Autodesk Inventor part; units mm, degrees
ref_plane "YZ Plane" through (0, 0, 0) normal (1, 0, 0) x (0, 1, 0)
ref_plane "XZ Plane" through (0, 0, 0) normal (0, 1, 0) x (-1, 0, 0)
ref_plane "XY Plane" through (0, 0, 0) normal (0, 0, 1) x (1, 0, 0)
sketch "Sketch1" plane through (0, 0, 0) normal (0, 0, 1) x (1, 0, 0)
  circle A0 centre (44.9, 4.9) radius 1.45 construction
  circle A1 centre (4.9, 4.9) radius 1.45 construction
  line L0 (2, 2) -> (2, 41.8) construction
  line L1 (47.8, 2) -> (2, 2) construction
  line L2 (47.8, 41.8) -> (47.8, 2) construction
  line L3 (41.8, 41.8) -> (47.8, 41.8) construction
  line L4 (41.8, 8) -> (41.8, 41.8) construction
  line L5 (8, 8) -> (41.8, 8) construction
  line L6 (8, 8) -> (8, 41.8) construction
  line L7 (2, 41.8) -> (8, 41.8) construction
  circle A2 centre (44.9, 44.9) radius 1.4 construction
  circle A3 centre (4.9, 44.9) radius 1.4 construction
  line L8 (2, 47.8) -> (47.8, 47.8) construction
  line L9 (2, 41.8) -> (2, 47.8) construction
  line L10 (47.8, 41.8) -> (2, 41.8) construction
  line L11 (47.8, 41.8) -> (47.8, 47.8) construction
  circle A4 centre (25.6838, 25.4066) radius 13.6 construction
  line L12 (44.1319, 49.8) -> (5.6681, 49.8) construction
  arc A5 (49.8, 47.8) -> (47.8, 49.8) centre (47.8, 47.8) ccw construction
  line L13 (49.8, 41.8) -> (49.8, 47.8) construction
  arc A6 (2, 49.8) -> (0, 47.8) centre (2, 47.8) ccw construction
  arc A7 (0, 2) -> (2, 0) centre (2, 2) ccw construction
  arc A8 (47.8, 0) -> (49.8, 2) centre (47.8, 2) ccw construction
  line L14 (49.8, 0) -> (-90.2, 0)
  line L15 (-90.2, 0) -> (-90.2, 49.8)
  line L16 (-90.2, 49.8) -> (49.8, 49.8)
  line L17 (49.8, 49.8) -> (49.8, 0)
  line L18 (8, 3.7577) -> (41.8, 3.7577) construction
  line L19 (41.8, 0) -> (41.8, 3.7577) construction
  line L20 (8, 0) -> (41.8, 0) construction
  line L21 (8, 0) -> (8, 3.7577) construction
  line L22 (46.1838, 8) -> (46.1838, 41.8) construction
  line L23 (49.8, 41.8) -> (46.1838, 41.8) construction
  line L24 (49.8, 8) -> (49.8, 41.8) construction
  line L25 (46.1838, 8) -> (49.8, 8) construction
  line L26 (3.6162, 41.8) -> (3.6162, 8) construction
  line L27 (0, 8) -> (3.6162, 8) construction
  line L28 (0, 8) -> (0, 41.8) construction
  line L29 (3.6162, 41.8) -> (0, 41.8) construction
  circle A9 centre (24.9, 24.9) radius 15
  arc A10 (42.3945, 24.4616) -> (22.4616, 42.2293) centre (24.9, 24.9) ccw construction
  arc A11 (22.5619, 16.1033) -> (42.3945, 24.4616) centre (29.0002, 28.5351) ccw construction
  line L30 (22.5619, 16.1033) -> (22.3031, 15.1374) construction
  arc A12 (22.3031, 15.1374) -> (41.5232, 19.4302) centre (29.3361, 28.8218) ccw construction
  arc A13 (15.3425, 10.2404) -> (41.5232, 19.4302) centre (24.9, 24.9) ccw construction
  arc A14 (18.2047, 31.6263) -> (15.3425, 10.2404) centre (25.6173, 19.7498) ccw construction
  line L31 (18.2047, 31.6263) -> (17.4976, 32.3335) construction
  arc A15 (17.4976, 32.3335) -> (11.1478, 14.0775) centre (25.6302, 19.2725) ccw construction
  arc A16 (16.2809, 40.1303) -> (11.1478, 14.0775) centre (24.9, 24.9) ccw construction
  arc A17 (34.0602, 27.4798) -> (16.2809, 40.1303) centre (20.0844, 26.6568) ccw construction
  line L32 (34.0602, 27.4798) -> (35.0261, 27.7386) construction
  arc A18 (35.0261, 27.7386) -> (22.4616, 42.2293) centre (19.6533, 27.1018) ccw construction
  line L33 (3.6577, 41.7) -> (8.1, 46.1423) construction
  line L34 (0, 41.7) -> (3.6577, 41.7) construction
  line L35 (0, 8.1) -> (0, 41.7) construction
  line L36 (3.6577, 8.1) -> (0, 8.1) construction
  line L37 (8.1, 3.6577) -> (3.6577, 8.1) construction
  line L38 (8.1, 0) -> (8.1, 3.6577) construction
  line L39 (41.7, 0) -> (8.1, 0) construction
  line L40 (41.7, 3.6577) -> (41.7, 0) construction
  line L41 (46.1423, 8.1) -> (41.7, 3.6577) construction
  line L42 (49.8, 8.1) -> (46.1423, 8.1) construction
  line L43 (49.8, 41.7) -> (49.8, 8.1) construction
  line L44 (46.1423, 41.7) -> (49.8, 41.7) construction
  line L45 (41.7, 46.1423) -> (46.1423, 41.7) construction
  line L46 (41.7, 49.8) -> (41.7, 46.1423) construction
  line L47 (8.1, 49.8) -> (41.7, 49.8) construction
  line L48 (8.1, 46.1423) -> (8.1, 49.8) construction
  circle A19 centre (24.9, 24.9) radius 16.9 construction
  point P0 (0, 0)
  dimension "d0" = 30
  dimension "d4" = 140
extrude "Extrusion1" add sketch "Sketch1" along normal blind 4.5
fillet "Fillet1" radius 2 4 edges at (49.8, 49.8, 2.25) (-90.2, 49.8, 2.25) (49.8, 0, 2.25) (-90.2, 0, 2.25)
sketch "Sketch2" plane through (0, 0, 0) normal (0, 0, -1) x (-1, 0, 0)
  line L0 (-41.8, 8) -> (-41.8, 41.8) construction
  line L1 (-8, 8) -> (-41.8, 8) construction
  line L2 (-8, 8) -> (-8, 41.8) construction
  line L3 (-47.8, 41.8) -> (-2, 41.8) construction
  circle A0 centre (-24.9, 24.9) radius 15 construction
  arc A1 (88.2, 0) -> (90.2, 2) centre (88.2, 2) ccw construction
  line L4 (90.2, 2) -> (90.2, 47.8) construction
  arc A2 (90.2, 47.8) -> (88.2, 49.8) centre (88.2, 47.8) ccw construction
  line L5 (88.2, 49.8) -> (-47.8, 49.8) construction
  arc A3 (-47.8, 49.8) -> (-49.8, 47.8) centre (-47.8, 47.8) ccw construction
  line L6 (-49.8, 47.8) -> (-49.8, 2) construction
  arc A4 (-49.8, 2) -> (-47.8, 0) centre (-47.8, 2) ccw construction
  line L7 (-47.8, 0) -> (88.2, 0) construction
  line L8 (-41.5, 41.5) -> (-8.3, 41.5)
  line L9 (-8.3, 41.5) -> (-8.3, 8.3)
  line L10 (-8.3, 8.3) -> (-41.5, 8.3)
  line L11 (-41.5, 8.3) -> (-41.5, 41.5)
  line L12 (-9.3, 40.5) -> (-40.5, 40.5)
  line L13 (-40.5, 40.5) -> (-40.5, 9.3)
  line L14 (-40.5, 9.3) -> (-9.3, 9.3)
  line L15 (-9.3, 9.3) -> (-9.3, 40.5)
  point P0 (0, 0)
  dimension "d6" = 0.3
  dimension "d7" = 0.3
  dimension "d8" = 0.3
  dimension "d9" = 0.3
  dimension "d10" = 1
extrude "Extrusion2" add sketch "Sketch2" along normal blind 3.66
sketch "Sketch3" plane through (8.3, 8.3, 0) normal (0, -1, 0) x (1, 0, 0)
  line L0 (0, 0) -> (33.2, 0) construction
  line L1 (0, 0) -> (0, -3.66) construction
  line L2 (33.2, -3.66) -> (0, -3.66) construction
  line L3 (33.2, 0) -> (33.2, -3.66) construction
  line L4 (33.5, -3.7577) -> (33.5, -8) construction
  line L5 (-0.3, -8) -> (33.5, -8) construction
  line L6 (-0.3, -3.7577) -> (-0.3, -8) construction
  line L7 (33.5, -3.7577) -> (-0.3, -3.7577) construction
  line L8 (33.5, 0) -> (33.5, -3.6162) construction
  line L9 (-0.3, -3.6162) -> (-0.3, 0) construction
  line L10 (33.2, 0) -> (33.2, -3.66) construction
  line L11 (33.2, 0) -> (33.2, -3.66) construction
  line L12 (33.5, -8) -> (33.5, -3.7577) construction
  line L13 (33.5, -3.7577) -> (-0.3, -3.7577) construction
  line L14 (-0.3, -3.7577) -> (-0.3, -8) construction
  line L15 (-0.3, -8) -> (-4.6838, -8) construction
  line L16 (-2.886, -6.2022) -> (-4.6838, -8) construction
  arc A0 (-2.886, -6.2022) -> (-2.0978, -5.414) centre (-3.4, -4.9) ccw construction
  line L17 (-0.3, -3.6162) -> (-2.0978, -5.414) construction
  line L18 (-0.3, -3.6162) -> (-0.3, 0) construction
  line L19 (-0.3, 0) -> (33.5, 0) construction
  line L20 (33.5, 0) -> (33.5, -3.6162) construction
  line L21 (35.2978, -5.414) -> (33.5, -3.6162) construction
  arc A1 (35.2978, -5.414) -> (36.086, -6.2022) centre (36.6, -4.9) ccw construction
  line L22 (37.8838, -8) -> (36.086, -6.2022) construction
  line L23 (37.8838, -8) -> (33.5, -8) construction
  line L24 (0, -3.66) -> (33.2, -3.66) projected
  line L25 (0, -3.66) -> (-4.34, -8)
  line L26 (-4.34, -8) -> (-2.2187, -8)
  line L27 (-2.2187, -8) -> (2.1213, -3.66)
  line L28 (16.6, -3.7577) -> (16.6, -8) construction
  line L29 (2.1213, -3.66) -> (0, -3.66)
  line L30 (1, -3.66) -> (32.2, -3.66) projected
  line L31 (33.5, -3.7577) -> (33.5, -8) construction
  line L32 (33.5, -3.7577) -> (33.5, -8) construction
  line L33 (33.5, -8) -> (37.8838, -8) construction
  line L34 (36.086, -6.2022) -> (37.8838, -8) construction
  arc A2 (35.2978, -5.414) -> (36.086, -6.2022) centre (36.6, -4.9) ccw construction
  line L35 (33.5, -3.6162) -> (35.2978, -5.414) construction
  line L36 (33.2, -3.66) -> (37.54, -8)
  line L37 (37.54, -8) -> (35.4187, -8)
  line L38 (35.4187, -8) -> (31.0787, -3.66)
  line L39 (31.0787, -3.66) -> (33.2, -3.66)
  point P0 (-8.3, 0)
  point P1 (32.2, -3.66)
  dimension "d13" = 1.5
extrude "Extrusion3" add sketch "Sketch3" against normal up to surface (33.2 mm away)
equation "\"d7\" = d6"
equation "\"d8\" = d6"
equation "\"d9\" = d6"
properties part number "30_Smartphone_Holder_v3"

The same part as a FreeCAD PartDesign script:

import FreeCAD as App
import Part
import Sketcher

V = App.Vector


def edges_at(feature, points):
    """Names of the edges that pass closest to the given points."""
    edges = feature.Shape.Edges
    near = lambda p: min(range(len(edges)), key=lambda i: edges[i].distToShape(Part.Vertex(*p))[0])
    return sorted({f"Edge{near(p) + 1}" for p in points})

doc = App.newDocument("Part")
body = doc.addObject("PartDesign::Body", "Body")

# Sketch on XY plane
sketch1 = body.newObject("Sketcher::SketchObject", "Sketch")
sketch1.AttachmentSupport = (doc.getObject("XY_Plane"), [""])
sketch1.MapMode = "FlatFace"
sketch1.addGeometry(Part.LineSegment(V(-90, 0, 0), V(50, 0, 0)), False)
sketch1.addGeometry(Part.LineSegment(V(50, 0, 0), V(50, 50, 0)), False)
sketch1.addGeometry(Part.LineSegment(V(50, 50, 0), V(-90, 50, 0)), False)
sketch1.addGeometry(Part.LineSegment(V(-90, 50, 0), V(-90, 0, 0)), False)
sketch1.addGeometry(Part.Circle(V(25, 25, 0), V(0, 0, 1), 15), False)
sketch1.addConstraint(Sketcher.Constraint("Coincident", 0, 2, 1, 1))
sketch1.addConstraint(Sketcher.Constraint("Coincident", 1, 2, 2, 1))
sketch1.addConstraint(Sketcher.Constraint("Coincident", 2, 2, 3, 1))
sketch1.addConstraint(Sketcher.Constraint("Coincident", 3, 2, 0, 1))
sketch1.addConstraint(Sketcher.Constraint("Horizontal", 0))
sketch1.addConstraint(Sketcher.Constraint("Vertical", 1))
sketch1.addConstraint(Sketcher.Constraint("Horizontal", 2))
sketch1.addConstraint(Sketcher.Constraint("Vertical", 3))
sketch1.addConstraint(Sketcher.Constraint("PointOnObject", 0, 2, -1))
sketch1.addConstraint(Sketcher.Constraint("Diameter", 4, 30.0))
sketch1.addConstraint(Sketcher.Constraint("DistanceX", 0, 1, 0, 2, 140.0))
sketch1.addConstraint(Sketcher.Constraint("DistanceY", 1, 1, 1, 2, 49.8))
sketch1.addConstraint(Sketcher.Constraint("DistanceX", -1, 1, 4, 3, 24.9))
sketch1.addConstraint(Sketcher.Constraint("DistanceY", -1, 1, 4, 3, 24.9))
sketch1.addConstraint(Sketcher.Constraint("DistanceX", -1, 1, 0, 2, 49.8))
pad1 = body.newObject("PartDesign::Pad", "Pad")
pad1.Profile = sketch1
pad1.Length = 4.5
doc.recompute()

fillet = body.newObject("PartDesign::Fillet", "Fillet")
fillet.Base = (pad1, edges_at(pad1, [
    (49.8, 49.8, 2.25),
    (-90.2, 49.8, 2.25),
    (49.8, 0, 2.25),
    (-90.2, 0, 2.25),
]))
fillet.Radius = 2

# Sketch on XY plane
sketch2 = body.newObject("Sketcher::SketchObject", "Sketch001")
sketch2.AttachmentSupport = (doc.getObject("XY_Plane"), [""])
sketch2.MapMode = "FlatFace"
sketch2.addGeometry(Part.LineSegment(V(8, 42, 0), V(42, 42, 0)), False)
sketch2.addGeometry(Part.LineSegment(V(42, 42, 0), V(42, 8, 0)), False)
sketch2.addGeometry(Part.LineSegment(V(42, 8, 0), V(8, 8, 0)), False)
sketch2.addGeometry(Part.LineSegment(V(8, 8, 0), V(8, 42, 0)), False)
sketch2.addGeometry(Part.LineSegment(V(40, 40, 0), V(9, 40, 0)), False)
sketch2.addGeometry(Part.LineSegment(V(9, 40, 0), V(9, 9, 0)), False)
sketch2.addGeometry(Part.LineSegment(V(9, 9, 0), V(40, 9, 0)), False)
sketch2.addGeometry(Part.LineSegment(V(40, 9, 0), V(40, 40, 0)), False)
sketch2.addConstraint(Sketcher.Constraint("Coincident", 0, 2, 1, 1))
sketch2.addConstraint(Sketcher.Constraint("Coincident", 1, 2, 2, 1))
sketch2.addConstraint(Sketcher.Constraint("Coincident", 2, 2, 3, 1))
sketch2.addConstraint(Sketcher.Constraint("Coincident", 3, 2, 0, 1))
sketch2.addConstraint(Sketcher.Constraint("Coincident", 4, 2, 5, 1))
sketch2.addConstraint(Sketcher.Constraint("Coincident", 5, 2, 6, 1))
sketch2.addConstraint(Sketcher.Constraint("Coincident", 6, 2, 7, 1))
sketch2.addConstraint(Sketcher.Constraint("Coincident", 7, 2, 4, 1))
sketch2.addConstraint(Sketcher.Constraint("Horizontal", 0))
sketch2.addConstraint(Sketcher.Constraint("Vertical", 1))
sketch2.addConstraint(Sketcher.Constraint("Horizontal", 2))
sketch2.addConstraint(Sketcher.Constraint("Vertical", 3))
sketch2.addConstraint(Sketcher.Constraint("Horizontal", 4))
sketch2.addConstraint(Sketcher.Constraint("Vertical", 5))
sketch2.addConstraint(Sketcher.Constraint("Horizontal", 6))
sketch2.addConstraint(Sketcher.Constraint("Vertical", 7))
sketch2.addConstraint(Sketcher.Constraint("Equal", 2, 1))
sketch2.addConstraint(Sketcher.Constraint("Equal", 6, 5))
sketch2.addConstraint(Sketcher.Constraint("DistanceX", 3, 2, 4, 2, 1.0))
sketch2.addConstraint(Sketcher.Constraint("DistanceY", 4, 2, 3, 2, 1.0))
sketch2.addConstraint(Sketcher.Constraint("DistanceY", 2, 2, 5, 2, 1.0))
sketch2.addConstraint(Sketcher.Constraint("DistanceX", 0, 1, 0, 2, 33.2))
sketch2.addConstraint(Sketcher.Constraint("DistanceX", -1, 1, 0, 2, 41.5))
sketch2.addConstraint(Sketcher.Constraint("DistanceY", -1, 1, 0, 2, 41.5))
pad2 = body.newObject("PartDesign::Pad", "Pad001")
pad2.Profile = sketch2
pad2.Length = 3.66
pad2.Reversed = True

# Sketch on XZ plane
sketch3 = body.newObject("Sketcher::SketchObject", "Sketch002")
sketch3.AttachmentSupport = (doc.getObject("XZ_Plane"), [""])
sketch3.MapMode = "FlatFace"
sketch3.AttachmentOffset = App.Placement(V(0, 0, -8.3), App.Rotation())
sketch3.addGeometry(Part.LineSegment(V(41.5, -3.7, 0), V(39.4, -3.7, 0)), False)
sketch3.addGeometry(Part.LineSegment(V(39.4, -3.7, 0), V(43.7, -8, 0)), False)
sketch3.addGeometry(Part.LineSegment(V(43.7, -8, 0), V(45.8, -8, 0)), False)
sketch3.addGeometry(Part.LineSegment(V(45.8, -8, 0), V(41.5, -3.7, 0)), False)
sketch3.addGeometry(Part.LineSegment(V(10.4, -3.7, 0), V(8.3, -3.7, 0)), False)
sketch3.addGeometry(Part.LineSegment(V(8.3, -3.7, 0), V(4, -8, 0)), False)
sketch3.addGeometry(Part.LineSegment(V(4, -8, 0), V(6.1, -8, 0)), False)
sketch3.addGeometry(Part.LineSegment(V(6.1, -8, 0), V(10.4, -3.7, 0)), False)
sketch3.addConstraint(Sketcher.Constraint("Coincident", 0, 2, 1, 1))
sketch3.addConstraint(Sketcher.Constraint("Coincident", 1, 2, 2, 1))
sketch3.addConstraint(Sketcher.Constraint("Coincident", 2, 2, 3, 1))
sketch3.addConstraint(Sketcher.Constraint("Coincident", 3, 2, 0, 1))
sketch3.addConstraint(Sketcher.Constraint("Coincident", 4, 2, 5, 1))
sketch3.addConstraint(Sketcher.Constraint("Coincident", 5, 2, 6, 1))
sketch3.addConstraint(Sketcher.Constraint("Coincident", 6, 2, 7, 1))
sketch3.addConstraint(Sketcher.Constraint("Coincident", 7, 2, 4, 1))
sketch3.addConstraint(Sketcher.Constraint("Horizontal", 0))
sketch3.addConstraint(Sketcher.Constraint("Horizontal", 2))
sketch3.addConstraint(Sketcher.Constraint("Horizontal", 4))
sketch3.addConstraint(Sketcher.Constraint("Horizontal", 6))
sketch3.addConstraint(Sketcher.Constraint("Parallel", 1, 3))
sketch3.addConstraint(Sketcher.Constraint("Perpendicular", 3, 5))
sketch3.addConstraint(Sketcher.Constraint("Parallel", 5, 7))
sketch3.addConstraint(Sketcher.Constraint("Horizontal", 3, 2, 4, 2))
sketch3.addConstraint(Sketcher.Constraint("Horizontal", 2, 2, 5, 2))
sketch3.addConstraint(Sketcher.Constraint("Equal", 2, 4))
sketch3.addConstraint(Sketcher.Constraint("Equal", 3, 5))
sketch3.addConstraint(Sketcher.Constraint("DistanceY", 1, 2, -1, 1, 8.0))
sketch3.addConstraint(Sketcher.Constraint("DistanceX", -1, 1, 3, 2, 41.5))
sketch3.addConstraint(Sketcher.Constraint("DistanceX", -1, 1, 4, 2, 8.3))
sketch3.addConstraint(Sketcher.Constraint("DistanceY", 0, 2, -1, 1, 3.66))
sketch3.addConstraint(Sketcher.Constraint("DistanceX", 0, 2, 0, 1, 2.1213))
pad3 = body.newObject("PartDesign::Pad", "Pad002")
pad3.Profile = sketch3
pad3.Length = 33.2
pad3.Reversed = True

doc.recompute()
